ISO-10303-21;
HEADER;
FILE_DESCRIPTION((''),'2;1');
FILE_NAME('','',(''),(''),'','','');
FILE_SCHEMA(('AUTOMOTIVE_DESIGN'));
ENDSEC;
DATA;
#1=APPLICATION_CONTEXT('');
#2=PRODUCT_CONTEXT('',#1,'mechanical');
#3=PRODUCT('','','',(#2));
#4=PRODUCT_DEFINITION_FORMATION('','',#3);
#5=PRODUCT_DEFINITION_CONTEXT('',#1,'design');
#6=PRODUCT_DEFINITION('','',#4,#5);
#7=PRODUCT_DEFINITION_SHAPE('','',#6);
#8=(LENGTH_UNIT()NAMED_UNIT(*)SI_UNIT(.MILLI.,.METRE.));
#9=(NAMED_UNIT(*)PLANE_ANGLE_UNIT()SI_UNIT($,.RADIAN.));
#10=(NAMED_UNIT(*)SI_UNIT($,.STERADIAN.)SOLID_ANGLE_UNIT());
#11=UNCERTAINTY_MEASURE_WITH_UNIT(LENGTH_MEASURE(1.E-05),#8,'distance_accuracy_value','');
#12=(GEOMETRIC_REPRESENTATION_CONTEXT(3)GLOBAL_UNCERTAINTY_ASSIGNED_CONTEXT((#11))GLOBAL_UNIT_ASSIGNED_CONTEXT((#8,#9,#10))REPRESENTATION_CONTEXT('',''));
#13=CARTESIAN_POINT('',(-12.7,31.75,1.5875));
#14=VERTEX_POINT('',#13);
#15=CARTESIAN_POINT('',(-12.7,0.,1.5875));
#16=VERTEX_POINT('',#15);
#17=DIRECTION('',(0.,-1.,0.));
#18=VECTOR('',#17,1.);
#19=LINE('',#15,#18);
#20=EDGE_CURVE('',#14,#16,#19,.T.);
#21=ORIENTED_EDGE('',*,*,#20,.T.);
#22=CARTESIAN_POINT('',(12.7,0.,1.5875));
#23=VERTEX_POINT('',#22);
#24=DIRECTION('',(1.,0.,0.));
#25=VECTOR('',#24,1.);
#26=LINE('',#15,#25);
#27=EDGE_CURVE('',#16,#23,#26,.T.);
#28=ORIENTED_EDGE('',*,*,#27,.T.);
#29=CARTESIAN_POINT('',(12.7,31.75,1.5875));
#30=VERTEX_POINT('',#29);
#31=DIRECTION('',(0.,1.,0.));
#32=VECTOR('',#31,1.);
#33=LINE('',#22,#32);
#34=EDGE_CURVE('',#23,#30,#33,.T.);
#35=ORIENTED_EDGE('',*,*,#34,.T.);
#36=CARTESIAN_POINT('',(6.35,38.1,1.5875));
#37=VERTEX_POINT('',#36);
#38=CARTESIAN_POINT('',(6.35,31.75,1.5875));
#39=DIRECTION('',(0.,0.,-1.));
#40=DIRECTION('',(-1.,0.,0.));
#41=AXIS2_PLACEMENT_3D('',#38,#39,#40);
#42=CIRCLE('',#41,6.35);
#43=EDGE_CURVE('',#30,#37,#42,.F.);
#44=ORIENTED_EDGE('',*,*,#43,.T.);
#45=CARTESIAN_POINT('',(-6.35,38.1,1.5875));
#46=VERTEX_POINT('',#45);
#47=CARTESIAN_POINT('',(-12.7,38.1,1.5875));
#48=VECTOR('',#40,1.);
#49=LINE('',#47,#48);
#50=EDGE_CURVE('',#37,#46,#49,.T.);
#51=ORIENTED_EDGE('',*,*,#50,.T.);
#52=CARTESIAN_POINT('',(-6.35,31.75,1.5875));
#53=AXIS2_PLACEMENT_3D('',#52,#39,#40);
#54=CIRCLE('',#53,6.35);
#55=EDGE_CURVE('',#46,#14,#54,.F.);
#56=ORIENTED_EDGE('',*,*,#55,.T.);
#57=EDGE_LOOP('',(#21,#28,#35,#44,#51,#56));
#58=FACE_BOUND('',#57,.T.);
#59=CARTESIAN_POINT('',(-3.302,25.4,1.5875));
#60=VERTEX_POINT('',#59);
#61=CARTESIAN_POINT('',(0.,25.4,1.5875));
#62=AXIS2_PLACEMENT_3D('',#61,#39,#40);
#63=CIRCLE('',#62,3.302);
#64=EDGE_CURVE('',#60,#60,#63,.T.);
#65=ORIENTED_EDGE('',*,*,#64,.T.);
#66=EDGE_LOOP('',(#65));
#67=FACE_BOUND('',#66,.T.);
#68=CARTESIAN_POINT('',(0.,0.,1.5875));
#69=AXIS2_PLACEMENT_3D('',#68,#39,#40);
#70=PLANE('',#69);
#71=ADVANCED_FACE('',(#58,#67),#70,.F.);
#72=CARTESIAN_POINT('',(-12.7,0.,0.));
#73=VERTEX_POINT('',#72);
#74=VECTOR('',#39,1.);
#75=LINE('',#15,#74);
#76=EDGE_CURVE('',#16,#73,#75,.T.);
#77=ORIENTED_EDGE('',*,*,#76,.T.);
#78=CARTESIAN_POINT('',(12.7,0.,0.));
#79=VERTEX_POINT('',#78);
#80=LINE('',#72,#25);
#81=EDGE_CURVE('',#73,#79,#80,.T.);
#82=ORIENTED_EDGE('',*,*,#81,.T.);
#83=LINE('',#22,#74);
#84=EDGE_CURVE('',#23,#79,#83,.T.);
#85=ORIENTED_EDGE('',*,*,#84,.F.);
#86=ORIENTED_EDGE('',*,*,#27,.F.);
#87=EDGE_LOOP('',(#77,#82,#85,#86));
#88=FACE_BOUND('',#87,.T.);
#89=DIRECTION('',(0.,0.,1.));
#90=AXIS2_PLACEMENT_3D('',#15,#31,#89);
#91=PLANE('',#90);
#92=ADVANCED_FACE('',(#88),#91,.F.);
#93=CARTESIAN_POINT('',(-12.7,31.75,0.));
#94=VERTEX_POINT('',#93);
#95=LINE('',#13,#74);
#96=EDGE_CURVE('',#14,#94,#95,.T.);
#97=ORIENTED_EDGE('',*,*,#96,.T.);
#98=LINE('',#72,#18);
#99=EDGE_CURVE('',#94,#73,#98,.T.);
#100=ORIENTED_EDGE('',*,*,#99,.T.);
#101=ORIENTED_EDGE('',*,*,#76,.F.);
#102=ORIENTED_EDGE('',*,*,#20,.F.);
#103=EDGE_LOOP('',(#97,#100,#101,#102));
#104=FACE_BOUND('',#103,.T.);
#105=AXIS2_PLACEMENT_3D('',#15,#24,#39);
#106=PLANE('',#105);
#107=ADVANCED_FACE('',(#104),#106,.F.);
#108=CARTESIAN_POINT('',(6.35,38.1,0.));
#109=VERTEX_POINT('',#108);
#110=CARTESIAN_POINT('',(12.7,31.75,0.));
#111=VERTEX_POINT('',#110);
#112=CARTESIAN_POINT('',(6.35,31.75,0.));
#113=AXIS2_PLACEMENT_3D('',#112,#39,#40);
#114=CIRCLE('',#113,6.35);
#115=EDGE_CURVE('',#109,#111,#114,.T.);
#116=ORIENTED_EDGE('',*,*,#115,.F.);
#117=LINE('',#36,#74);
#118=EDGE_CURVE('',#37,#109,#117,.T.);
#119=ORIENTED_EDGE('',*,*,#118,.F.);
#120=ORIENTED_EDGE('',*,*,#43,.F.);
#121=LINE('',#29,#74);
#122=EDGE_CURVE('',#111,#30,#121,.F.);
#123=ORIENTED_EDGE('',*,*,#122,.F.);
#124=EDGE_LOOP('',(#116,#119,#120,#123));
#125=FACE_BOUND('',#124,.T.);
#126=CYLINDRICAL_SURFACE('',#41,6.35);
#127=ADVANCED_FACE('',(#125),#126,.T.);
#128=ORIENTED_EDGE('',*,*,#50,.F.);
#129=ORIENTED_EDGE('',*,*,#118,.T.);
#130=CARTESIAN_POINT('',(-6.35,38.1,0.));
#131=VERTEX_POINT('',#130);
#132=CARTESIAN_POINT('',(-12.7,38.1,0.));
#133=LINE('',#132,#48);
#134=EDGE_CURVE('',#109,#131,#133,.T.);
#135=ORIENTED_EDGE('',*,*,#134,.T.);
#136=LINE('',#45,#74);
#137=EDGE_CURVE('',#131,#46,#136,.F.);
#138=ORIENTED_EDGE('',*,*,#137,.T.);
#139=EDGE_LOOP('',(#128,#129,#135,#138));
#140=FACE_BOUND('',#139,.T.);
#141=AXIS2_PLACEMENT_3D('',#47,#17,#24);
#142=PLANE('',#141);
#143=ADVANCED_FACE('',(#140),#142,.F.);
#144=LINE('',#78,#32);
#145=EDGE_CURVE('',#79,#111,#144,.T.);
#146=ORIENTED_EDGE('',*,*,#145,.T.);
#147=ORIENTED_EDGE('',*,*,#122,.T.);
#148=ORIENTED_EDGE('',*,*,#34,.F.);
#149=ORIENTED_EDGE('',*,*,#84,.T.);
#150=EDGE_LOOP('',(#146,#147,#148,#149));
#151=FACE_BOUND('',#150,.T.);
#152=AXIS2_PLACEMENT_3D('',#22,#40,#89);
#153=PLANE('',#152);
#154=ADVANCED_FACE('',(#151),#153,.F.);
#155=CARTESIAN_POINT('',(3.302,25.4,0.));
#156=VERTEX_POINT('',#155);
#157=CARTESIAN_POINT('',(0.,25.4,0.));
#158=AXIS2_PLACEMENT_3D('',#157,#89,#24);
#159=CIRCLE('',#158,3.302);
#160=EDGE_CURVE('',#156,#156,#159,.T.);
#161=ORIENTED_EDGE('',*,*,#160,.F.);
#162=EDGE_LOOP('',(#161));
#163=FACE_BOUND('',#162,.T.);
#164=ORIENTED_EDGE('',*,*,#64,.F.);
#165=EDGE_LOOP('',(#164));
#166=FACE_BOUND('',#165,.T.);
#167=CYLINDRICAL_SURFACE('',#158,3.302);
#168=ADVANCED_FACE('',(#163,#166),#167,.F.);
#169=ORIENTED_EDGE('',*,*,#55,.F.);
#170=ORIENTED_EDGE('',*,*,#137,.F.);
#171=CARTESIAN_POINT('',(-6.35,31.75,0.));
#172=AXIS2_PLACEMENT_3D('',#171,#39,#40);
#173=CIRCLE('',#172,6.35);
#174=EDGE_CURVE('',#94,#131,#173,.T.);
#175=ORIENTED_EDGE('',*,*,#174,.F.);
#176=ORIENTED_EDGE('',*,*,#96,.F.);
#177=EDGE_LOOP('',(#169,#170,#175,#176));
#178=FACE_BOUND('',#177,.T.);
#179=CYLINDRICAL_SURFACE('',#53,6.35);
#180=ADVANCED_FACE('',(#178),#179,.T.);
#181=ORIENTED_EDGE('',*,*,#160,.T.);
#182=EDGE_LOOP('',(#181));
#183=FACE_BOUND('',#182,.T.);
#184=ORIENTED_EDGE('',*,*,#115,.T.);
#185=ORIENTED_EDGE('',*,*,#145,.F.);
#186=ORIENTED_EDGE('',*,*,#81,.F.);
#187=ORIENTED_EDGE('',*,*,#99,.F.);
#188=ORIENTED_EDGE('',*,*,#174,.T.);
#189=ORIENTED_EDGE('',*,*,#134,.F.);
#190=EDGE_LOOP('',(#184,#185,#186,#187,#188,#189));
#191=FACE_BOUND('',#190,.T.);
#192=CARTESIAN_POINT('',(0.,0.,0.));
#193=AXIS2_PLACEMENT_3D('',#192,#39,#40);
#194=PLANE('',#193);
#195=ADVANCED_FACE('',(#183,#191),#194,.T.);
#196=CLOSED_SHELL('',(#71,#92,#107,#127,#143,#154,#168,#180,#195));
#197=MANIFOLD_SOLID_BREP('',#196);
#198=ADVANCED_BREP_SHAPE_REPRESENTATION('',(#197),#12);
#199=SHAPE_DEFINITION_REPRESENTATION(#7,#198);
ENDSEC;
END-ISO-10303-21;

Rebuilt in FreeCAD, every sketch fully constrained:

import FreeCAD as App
import Part
import Sketcher
from FreeCAD import Vector
Q = App.Units.Quantity


def edges_at(feature, points):
    """Names of the edges that pass closest to the given points."""
    edges = feature.Shape.Edges
    near = lambda p: min(range(len(edges)), key=lambda i: edges[i].distToShape(Part.Vertex(*p))[0])
    return sorted({f"Edge{near(p) + 1}" for p in points})


def add_polygon(sketch, points):
    """Adds a closed chain of lines whose ends are joined by coincident constraints."""
    first, n = sketch.GeometryCount, len(points)
    for a, b in zip(points, points[1:] + points[:1]):
        sketch.addGeometry(Part.LineSegment(App.Vector(*a, 0), App.Vector(*b, 0)), False)
    for i in range(n):
        sketch.addConstraint(Sketcher.Constraint("Coincident", first + i, 2, first + (i + 1) % n, 1))

doc = App.newDocument("Part")
body = doc.addObject("PartDesign::Body", "Body")

# Sketch on XY plane
sketch1 = body.newObject("Sketcher::SketchObject", "Sketch")
sketch1.AttachmentSupport = (doc.getObject("XY_Plane"), [""])
sketch1.MapMode = "FlatFace"
add_polygon(sketch1, [(-13, 38), (-13, 0), (13, 0), (13, 38)])  # lines 0-3
sketch1.addConstraint(Sketcher.Constraint("Vertical", 0))
sketch1.addConstraint(Sketcher.Constraint("Horizontal", 1))
sketch1.addConstraint(Sketcher.Constraint("Vertical", 2))
sketch1.addConstraint(Sketcher.Constraint("Horizontal", 3))
sketch1.addConstraint(Sketcher.Constraint("Symmetric", 0, 2, 1, 2, -1, 1))
sketch1.addConstraint(Sketcher.Constraint("DistanceX", 1, 1, 1, 2, Q("1 in")))
sketch1.addConstraint(Sketcher.Constraint("DistanceY", 0, 2, 0, 1, Q("1.5 in")))
pad1 = body.newObject("PartDesign::Pad", "Pad")
pad1.Profile = sketch1
pad1.Length = Q("0.0625 in")

# Sketch on XY plane
sketch2 = body.newObject("Sketcher::SketchObject", "Sketch001")
sketch2.AttachmentSupport = (doc.getObject("XY_Plane"), [""])
sketch2.MapMode = "FlatFace"
sketch2.AttachmentOffset = App.Placement(Vector(0, 0, 0.0625 * 25.4), App.Rotation())
sketch2.addGeometry(Part.Circle(Vector(0, 25.4, 0), Vector(0, 0, 1), 3.3), False)
sketch2.addConstraint(Sketcher.Constraint("PointOnObject", 0, 3, -2))
sketch2.addConstraint(Sketcher.Constraint("Diameter", 0, Q("0.26 in")))
sketch2.addConstraint(Sketcher.Constraint("DistanceY", -1, 1, 0, 3, Q("1 in")))
pocket1 = body.newObject("PartDesign::Pocket", "Pocket")
pocket1.Profile = sketch2
pocket1.Type = "ThroughAll"
pocket1.Midplane = True
doc.recompute()

fillet = body.newObject("PartDesign::Fillet", "Fillet")
fillet.Base = (pocket1, edges_at(pocket1, [(-12.7, 38.1, 0.794), (12.7, 38.1, 0.794)]))
fillet.Radius = Q("0.25 in")

doc.recompute()
